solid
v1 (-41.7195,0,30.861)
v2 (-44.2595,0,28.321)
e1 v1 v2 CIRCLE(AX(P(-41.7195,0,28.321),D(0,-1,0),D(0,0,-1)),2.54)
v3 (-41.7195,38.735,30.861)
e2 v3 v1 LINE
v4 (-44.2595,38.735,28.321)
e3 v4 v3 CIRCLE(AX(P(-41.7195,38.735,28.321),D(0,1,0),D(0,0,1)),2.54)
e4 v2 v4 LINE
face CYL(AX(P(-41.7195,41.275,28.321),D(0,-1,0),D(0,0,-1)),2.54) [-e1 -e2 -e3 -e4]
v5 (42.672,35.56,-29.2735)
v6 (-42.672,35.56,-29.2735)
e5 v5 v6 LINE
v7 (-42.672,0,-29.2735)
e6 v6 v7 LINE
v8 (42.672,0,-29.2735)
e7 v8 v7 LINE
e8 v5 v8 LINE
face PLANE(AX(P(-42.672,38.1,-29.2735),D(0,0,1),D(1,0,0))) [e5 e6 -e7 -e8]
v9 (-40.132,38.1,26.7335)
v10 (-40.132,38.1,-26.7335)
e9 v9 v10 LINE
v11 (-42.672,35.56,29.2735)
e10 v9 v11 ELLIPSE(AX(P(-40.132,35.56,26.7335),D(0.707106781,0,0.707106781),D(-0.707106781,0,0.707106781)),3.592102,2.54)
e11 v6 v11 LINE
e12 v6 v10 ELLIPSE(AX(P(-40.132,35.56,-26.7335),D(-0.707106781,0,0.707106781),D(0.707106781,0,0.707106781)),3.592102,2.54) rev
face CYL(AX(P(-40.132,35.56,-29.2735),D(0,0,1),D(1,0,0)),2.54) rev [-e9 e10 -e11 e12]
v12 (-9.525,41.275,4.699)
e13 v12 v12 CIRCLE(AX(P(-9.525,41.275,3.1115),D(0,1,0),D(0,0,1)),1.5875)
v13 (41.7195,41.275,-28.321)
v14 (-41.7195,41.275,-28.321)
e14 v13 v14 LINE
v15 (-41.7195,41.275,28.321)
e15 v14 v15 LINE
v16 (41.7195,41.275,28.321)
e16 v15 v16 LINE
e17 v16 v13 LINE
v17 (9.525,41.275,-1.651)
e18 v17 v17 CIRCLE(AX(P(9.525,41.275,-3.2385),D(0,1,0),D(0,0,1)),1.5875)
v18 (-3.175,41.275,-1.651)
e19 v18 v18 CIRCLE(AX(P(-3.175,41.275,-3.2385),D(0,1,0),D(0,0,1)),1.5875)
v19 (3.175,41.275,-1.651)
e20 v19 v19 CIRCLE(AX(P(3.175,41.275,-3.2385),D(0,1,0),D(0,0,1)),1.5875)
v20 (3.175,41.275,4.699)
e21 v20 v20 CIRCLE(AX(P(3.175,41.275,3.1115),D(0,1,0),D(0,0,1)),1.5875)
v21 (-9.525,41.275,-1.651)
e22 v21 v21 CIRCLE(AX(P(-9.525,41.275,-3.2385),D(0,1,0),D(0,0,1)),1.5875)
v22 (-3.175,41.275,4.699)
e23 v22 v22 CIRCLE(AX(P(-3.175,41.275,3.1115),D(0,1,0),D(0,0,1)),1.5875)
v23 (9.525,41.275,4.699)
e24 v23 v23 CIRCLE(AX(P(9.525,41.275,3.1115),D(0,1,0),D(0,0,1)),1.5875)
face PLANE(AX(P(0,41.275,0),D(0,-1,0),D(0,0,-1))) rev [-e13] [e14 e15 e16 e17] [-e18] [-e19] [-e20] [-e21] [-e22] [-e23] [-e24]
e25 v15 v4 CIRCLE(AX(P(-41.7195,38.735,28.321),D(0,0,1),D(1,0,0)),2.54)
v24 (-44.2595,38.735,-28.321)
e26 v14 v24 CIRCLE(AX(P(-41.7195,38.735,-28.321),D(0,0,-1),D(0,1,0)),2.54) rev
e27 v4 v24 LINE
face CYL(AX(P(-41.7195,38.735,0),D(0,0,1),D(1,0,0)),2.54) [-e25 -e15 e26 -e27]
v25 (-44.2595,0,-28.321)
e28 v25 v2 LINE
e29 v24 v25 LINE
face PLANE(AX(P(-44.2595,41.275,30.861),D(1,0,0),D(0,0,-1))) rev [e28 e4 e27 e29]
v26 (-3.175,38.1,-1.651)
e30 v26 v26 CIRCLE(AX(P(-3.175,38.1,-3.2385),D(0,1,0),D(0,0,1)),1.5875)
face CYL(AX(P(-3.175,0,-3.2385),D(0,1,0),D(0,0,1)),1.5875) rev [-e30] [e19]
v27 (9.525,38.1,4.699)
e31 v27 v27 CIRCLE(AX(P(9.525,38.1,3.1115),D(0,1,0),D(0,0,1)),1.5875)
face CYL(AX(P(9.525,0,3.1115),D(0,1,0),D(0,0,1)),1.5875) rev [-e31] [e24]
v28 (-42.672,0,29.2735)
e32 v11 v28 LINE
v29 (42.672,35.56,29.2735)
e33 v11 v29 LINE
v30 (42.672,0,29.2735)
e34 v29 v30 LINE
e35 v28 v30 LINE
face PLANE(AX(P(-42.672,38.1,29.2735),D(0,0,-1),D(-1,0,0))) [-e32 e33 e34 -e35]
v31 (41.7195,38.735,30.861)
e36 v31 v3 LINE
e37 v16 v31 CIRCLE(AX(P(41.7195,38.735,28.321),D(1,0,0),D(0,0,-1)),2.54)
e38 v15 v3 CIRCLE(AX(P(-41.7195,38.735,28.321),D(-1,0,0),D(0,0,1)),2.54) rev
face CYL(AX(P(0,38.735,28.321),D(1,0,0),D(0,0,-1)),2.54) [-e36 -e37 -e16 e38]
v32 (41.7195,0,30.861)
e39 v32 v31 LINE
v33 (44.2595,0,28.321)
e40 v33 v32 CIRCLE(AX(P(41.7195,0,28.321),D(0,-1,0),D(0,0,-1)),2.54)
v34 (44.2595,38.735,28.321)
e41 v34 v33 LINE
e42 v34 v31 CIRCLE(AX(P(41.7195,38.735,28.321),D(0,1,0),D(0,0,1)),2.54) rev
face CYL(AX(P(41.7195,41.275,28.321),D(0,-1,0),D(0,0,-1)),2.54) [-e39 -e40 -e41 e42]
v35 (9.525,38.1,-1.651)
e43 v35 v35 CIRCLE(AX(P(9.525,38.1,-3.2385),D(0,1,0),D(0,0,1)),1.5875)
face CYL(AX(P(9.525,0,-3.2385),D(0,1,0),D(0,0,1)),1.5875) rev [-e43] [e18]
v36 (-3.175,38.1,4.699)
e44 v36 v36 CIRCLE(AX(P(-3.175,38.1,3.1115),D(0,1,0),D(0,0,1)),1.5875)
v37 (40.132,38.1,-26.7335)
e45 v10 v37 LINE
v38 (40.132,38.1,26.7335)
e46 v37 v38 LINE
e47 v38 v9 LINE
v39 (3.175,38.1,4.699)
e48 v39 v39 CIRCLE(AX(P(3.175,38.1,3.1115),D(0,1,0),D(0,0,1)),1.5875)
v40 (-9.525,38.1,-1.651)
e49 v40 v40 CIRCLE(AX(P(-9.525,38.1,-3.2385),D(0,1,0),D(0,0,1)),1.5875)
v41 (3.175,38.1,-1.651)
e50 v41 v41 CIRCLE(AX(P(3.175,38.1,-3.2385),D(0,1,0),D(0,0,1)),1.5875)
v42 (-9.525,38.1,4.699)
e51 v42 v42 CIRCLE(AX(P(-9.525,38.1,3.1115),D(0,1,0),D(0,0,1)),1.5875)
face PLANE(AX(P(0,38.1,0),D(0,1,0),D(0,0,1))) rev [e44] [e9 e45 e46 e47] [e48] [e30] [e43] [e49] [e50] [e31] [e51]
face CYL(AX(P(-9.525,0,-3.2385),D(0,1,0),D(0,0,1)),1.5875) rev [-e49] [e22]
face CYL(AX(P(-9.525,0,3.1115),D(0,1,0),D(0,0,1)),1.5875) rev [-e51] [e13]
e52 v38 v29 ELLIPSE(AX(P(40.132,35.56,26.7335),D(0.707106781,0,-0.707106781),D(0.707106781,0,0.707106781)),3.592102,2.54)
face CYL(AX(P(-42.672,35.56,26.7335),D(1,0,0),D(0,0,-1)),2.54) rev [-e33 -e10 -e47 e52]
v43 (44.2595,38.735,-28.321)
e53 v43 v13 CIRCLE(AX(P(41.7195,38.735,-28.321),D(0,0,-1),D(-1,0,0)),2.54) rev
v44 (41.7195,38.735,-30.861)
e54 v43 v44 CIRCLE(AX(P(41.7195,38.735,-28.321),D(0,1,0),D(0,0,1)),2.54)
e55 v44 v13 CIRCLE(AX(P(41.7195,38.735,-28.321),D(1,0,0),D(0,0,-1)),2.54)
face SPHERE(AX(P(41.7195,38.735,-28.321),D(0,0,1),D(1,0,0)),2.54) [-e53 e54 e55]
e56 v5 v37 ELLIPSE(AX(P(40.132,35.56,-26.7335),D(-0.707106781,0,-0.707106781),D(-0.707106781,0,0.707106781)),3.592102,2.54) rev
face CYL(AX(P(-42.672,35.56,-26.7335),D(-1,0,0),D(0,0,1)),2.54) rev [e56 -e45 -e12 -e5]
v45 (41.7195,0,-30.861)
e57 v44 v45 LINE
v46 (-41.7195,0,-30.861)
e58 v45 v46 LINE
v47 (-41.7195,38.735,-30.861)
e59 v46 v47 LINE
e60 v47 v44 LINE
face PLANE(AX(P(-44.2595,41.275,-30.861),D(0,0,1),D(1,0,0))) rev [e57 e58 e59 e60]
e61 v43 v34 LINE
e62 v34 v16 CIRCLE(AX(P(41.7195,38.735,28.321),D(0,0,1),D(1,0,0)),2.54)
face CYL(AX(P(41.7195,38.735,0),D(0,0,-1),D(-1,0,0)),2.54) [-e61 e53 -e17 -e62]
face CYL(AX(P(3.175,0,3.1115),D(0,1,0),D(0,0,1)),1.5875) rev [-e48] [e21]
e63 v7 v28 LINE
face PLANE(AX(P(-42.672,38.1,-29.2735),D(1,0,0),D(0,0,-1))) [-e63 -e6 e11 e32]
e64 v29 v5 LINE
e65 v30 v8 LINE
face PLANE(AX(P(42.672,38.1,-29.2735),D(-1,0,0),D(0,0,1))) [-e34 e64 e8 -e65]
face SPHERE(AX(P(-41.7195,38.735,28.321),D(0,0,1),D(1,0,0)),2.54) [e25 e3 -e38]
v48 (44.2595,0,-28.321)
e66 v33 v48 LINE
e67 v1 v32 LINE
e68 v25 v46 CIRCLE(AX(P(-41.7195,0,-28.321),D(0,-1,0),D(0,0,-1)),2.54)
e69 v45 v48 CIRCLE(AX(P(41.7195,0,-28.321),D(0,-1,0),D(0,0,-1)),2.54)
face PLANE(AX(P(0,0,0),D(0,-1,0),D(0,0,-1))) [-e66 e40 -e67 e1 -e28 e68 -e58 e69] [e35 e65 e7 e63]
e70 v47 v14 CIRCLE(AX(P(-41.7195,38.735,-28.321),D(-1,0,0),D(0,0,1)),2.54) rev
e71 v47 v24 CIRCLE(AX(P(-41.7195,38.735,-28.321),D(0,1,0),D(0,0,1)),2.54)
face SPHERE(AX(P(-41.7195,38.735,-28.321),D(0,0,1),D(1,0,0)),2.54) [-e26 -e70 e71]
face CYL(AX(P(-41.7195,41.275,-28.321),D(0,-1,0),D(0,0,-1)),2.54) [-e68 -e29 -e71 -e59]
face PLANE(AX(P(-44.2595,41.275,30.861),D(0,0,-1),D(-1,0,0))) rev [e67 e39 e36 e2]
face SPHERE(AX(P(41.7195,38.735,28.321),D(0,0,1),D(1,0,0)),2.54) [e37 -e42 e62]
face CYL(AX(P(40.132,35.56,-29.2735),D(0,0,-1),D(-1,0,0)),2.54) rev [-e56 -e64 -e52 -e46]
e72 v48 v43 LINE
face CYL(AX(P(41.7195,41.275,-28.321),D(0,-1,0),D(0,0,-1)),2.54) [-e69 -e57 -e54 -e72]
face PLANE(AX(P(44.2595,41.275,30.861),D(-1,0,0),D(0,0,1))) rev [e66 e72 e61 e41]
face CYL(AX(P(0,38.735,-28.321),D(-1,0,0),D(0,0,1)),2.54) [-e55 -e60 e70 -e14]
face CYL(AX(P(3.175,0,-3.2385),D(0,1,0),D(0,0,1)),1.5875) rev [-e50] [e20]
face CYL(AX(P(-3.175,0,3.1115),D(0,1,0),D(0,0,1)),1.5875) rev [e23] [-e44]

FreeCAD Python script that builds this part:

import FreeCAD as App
import Part
import Sketcher
Q = App.Units.Quantity


def edges_at(feature, points):
    """Names of the edges that pass closest to the given points."""
    edges = feature.Shape.Edges
    near = lambda p: min(range(len(edges)), key=lambda i: edges[i].distToShape(Part.Vertex(*p))[0])
    return sorted({f"Edge{near(p) + 1}" for p in points})

doc = App.newDocument("Part")
body = doc.addObject("PartDesign::Body", "Body")

sketch1 = body.newObject("Sketcher::SketchObject", "Sketch")
sketch1.AttachmentSupport = (doc.getObject("XZ_Plane"), [""])
sketch1.MapMode = "FlatFace"
sketch1.addGeometry([
    Part.LineSegment(App.Vector(-44, -31, 0), App.Vector(-44, 31, 0)),
    Part.LineSegment(App.Vector(-44, 31, 0), App.Vector(44, 31, 0)),
    Part.LineSegment(App.Vector(44, 31, 0), App.Vector(44, -31, 0)),
    Part.LineSegment(App.Vector(44, -31, 0), App.Vector(-44, -31, 0)),
], False)
sketch1.addConstraint([
    Sketcher.Constraint("Coincident", 0, 2, 1, 1),
    Sketcher.Constraint("Coincident", 1, 2, 2, 1),
    Sketcher.Constraint("Coincident", 2, 2, 3, 1),
    Sketcher.Constraint("Coincident", 3, 2, 0, 1),
    Sketcher.Constraint("Vertical", 0),
    Sketcher.Constraint("Horizontal", 1),
    Sketcher.Constraint("Vertical", 2),
    Sketcher.Constraint("Horizontal", 3),
    Sketcher.Constraint("Symmetric", 0, 2, 2, 2, -1, 1),
    Sketcher.Constraint("DistanceY", 0, 1, 0, 2, Q("2.43 in")),
    Sketcher.Constraint("DistanceX", 1, 1, 1, 2, Q("3.485 in")),
])
pad1 = body.newObject("PartDesign::Pad", "Pad")
pad1.Profile = sketch1
pad1.Length = Q("1.625 in")
pad1.Reversed = True

sketch2 = body.newObject("Sketcher::SketchObject", "Sketch001")
sketch2.AttachmentSupport = (doc.getObject("XZ_Plane"), [""])
sketch2.MapMode = "FlatFace"
sketch2.addGeometry([
    Part.LineSegment(App.Vector(-43, -29, 0), App.Vector(-43, 29, 0)),
    Part.LineSegment(App.Vector(-43, 29, 0), App.Vector(43, 29, 0)),
    Part.LineSegment(App.Vector(43, 29, 0), App.Vector(43, -29, 0)),
    Part.LineSegment(App.Vector(43, -29, 0), App.Vector(-43, -29, 0)),
], False)
sketch2.addConstraint([
    Sketcher.Constraint("Coincident", 0, 2, 1, 1),
    Sketcher.Constraint("Coincident", 1, 2, 2, 1),
    Sketcher.Constraint("Coincident", 2, 2, 3, 1),
    Sketcher.Constraint("Coincident", 3, 2, 0, 1),
    Sketcher.Constraint("Vertical", 0),
    Sketcher.Constraint("Horizontal", 1),
    Sketcher.Constraint("Vertical", 2),
    Sketcher.Constraint("Horizontal", 3),
    Sketcher.Constraint("Symmetric", 0, 2, 2, 2, -1, 1),
    Sketcher.Constraint("DistanceX", 1, 1, 1, 2, Q("3.36 in")),
    Sketcher.Constraint("DistanceY", 0, 1, 0, 2, Q("2.305 in")),
])
pocket1 = body.newObject("PartDesign::Pocket", "Pocket")
pocket1.Profile = sketch2
pocket1.Length = Q("1.5 in")
doc.recompute()

fillet = body.newObject("PartDesign::Fillet", "Fillet")
fillet.Base = (pocket1, edges_at(pocket1, [
    (-44.26, 41.275, 0),
    (0, 41.275, 30.861),
    (44.26, 41.275, 0),
    (0, 41.275, -30.861),
    (44.26, 20.637, 30.861),
    (-44.26, 20.637, 30.861),
    (-44.26, 20.637, -30.861),
    (44.26, 20.637, -30.861),
]))
fillet.Radius = Q("0.1 in")

sketch3 = body.newObject("Sketcher::SketchObject", "Sketch002")
sketch3.AttachmentSupport = (doc.getObject("XZ_Plane"), [""])
sketch3.MapMode = "FlatFace"
sketch3.AttachmentOffset = App.Placement(App.Vector(0, 0, -1.625 * 25.4), App.Rotation())
sketch3.addGeometry([
    Part.Circle(App.Vector(-9.5, 3.1, 0), App.Vector(0, 0, 1), 1.6),
    Part.Circle(App.Vector(-3.2, 3.1, 0), App.Vector(0, 0, 1), 1.6),
    Part.Circle(App.Vector(3.2, 3.1, 0), App.Vector(0, 0, 1), 1.6),
    Part.Circle(App.Vector(9.5, 3.1, 0), App.Vector(0, 0, 1), 1.6),
    Part.Circle(App.Vector(-9.5, -3.2, 0), App.Vector(0, 0, 1), 1.6),
    Part.Circle(App.Vector(-3.2, -3.2, 0), App.Vector(0, 0, 1), 1.6),
    Part.Circle(App.Vector(3.2, -3.2, 0), App.Vector(0, 0, 1), 1.6),
    Part.Circle(App.Vector(9.5, -3.2, 0), App.Vector(0, 0, 1), 1.6),
], False)
sketch3.addConstraint([
    Sketcher.Constraint("Equal", 0, 1),
    Sketcher.Constraint("Equal", 1, 2),
    Sketcher.Constraint("Equal", 2, 3),
    Sketcher.Constraint("Equal", 3, 4),
    Sketcher.Constraint("Equal", 4, 5),
    Sketcher.Constraint("Equal", 5, 6),
    Sketcher.Constraint("Equal", 6, 7),
    Sketcher.Constraint("Symmetric", 1, 3, 2, 3, -2),
    Sketcher.Constraint("Symmetric", 0, 3, 3, 3, -2),
    Sketcher.Constraint("Symmetric", 5, 3, 6, 3, -2),
    Sketcher.Constraint("Symmetric", 4, 3, 7, 3, -2),
    Sketcher.Constraint("Horizontal", 0, 3, 1, 3),
    Sketcher.Constraint("Horizontal", 4, 3, 5, 3),
    Sketcher.Constraint("Vertical", 0, 3, 4, 3),
    Sketcher.Constraint("Vertical", 1, 3, 5, 3),
    Sketcher.Constraint("Diameter", 0, Q("0.125 in")),
    Sketcher.Constraint("DistanceX", 0, 3, 2, 3, Q("0.5 in")),
    Sketcher.Constraint("DistanceX", 0, 3, 1, 3, Q("0.25 in")),
    Sketcher.Constraint("DistanceY", 4, 3, 0, 3, Q("0.25 in")),
    Sketcher.Constraint("DistanceY", -1, 1, 0, 3, Q("0.1225 in")),
])
pocket2 = body.newObject("PartDesign::Pocket", "Pocket001")
pocket2.Profile = sketch3
pocket2.Type = "ThroughAll"
pocket2.Reversed = True
doc.recompute()

fillet2 = body.newObject("PartDesign::Fillet", "Fillet001")
fillet2.Base = (pocket2, edges_at(pocket2, [
    (42.672, 38.1, 0),
    (0, 38.1, -29.273),
    (-42.672, 38.1, 0),
    (0, 38.1, 29.273),
]))
fillet2.Radius = Q("0.1 in")

doc.recompute()
